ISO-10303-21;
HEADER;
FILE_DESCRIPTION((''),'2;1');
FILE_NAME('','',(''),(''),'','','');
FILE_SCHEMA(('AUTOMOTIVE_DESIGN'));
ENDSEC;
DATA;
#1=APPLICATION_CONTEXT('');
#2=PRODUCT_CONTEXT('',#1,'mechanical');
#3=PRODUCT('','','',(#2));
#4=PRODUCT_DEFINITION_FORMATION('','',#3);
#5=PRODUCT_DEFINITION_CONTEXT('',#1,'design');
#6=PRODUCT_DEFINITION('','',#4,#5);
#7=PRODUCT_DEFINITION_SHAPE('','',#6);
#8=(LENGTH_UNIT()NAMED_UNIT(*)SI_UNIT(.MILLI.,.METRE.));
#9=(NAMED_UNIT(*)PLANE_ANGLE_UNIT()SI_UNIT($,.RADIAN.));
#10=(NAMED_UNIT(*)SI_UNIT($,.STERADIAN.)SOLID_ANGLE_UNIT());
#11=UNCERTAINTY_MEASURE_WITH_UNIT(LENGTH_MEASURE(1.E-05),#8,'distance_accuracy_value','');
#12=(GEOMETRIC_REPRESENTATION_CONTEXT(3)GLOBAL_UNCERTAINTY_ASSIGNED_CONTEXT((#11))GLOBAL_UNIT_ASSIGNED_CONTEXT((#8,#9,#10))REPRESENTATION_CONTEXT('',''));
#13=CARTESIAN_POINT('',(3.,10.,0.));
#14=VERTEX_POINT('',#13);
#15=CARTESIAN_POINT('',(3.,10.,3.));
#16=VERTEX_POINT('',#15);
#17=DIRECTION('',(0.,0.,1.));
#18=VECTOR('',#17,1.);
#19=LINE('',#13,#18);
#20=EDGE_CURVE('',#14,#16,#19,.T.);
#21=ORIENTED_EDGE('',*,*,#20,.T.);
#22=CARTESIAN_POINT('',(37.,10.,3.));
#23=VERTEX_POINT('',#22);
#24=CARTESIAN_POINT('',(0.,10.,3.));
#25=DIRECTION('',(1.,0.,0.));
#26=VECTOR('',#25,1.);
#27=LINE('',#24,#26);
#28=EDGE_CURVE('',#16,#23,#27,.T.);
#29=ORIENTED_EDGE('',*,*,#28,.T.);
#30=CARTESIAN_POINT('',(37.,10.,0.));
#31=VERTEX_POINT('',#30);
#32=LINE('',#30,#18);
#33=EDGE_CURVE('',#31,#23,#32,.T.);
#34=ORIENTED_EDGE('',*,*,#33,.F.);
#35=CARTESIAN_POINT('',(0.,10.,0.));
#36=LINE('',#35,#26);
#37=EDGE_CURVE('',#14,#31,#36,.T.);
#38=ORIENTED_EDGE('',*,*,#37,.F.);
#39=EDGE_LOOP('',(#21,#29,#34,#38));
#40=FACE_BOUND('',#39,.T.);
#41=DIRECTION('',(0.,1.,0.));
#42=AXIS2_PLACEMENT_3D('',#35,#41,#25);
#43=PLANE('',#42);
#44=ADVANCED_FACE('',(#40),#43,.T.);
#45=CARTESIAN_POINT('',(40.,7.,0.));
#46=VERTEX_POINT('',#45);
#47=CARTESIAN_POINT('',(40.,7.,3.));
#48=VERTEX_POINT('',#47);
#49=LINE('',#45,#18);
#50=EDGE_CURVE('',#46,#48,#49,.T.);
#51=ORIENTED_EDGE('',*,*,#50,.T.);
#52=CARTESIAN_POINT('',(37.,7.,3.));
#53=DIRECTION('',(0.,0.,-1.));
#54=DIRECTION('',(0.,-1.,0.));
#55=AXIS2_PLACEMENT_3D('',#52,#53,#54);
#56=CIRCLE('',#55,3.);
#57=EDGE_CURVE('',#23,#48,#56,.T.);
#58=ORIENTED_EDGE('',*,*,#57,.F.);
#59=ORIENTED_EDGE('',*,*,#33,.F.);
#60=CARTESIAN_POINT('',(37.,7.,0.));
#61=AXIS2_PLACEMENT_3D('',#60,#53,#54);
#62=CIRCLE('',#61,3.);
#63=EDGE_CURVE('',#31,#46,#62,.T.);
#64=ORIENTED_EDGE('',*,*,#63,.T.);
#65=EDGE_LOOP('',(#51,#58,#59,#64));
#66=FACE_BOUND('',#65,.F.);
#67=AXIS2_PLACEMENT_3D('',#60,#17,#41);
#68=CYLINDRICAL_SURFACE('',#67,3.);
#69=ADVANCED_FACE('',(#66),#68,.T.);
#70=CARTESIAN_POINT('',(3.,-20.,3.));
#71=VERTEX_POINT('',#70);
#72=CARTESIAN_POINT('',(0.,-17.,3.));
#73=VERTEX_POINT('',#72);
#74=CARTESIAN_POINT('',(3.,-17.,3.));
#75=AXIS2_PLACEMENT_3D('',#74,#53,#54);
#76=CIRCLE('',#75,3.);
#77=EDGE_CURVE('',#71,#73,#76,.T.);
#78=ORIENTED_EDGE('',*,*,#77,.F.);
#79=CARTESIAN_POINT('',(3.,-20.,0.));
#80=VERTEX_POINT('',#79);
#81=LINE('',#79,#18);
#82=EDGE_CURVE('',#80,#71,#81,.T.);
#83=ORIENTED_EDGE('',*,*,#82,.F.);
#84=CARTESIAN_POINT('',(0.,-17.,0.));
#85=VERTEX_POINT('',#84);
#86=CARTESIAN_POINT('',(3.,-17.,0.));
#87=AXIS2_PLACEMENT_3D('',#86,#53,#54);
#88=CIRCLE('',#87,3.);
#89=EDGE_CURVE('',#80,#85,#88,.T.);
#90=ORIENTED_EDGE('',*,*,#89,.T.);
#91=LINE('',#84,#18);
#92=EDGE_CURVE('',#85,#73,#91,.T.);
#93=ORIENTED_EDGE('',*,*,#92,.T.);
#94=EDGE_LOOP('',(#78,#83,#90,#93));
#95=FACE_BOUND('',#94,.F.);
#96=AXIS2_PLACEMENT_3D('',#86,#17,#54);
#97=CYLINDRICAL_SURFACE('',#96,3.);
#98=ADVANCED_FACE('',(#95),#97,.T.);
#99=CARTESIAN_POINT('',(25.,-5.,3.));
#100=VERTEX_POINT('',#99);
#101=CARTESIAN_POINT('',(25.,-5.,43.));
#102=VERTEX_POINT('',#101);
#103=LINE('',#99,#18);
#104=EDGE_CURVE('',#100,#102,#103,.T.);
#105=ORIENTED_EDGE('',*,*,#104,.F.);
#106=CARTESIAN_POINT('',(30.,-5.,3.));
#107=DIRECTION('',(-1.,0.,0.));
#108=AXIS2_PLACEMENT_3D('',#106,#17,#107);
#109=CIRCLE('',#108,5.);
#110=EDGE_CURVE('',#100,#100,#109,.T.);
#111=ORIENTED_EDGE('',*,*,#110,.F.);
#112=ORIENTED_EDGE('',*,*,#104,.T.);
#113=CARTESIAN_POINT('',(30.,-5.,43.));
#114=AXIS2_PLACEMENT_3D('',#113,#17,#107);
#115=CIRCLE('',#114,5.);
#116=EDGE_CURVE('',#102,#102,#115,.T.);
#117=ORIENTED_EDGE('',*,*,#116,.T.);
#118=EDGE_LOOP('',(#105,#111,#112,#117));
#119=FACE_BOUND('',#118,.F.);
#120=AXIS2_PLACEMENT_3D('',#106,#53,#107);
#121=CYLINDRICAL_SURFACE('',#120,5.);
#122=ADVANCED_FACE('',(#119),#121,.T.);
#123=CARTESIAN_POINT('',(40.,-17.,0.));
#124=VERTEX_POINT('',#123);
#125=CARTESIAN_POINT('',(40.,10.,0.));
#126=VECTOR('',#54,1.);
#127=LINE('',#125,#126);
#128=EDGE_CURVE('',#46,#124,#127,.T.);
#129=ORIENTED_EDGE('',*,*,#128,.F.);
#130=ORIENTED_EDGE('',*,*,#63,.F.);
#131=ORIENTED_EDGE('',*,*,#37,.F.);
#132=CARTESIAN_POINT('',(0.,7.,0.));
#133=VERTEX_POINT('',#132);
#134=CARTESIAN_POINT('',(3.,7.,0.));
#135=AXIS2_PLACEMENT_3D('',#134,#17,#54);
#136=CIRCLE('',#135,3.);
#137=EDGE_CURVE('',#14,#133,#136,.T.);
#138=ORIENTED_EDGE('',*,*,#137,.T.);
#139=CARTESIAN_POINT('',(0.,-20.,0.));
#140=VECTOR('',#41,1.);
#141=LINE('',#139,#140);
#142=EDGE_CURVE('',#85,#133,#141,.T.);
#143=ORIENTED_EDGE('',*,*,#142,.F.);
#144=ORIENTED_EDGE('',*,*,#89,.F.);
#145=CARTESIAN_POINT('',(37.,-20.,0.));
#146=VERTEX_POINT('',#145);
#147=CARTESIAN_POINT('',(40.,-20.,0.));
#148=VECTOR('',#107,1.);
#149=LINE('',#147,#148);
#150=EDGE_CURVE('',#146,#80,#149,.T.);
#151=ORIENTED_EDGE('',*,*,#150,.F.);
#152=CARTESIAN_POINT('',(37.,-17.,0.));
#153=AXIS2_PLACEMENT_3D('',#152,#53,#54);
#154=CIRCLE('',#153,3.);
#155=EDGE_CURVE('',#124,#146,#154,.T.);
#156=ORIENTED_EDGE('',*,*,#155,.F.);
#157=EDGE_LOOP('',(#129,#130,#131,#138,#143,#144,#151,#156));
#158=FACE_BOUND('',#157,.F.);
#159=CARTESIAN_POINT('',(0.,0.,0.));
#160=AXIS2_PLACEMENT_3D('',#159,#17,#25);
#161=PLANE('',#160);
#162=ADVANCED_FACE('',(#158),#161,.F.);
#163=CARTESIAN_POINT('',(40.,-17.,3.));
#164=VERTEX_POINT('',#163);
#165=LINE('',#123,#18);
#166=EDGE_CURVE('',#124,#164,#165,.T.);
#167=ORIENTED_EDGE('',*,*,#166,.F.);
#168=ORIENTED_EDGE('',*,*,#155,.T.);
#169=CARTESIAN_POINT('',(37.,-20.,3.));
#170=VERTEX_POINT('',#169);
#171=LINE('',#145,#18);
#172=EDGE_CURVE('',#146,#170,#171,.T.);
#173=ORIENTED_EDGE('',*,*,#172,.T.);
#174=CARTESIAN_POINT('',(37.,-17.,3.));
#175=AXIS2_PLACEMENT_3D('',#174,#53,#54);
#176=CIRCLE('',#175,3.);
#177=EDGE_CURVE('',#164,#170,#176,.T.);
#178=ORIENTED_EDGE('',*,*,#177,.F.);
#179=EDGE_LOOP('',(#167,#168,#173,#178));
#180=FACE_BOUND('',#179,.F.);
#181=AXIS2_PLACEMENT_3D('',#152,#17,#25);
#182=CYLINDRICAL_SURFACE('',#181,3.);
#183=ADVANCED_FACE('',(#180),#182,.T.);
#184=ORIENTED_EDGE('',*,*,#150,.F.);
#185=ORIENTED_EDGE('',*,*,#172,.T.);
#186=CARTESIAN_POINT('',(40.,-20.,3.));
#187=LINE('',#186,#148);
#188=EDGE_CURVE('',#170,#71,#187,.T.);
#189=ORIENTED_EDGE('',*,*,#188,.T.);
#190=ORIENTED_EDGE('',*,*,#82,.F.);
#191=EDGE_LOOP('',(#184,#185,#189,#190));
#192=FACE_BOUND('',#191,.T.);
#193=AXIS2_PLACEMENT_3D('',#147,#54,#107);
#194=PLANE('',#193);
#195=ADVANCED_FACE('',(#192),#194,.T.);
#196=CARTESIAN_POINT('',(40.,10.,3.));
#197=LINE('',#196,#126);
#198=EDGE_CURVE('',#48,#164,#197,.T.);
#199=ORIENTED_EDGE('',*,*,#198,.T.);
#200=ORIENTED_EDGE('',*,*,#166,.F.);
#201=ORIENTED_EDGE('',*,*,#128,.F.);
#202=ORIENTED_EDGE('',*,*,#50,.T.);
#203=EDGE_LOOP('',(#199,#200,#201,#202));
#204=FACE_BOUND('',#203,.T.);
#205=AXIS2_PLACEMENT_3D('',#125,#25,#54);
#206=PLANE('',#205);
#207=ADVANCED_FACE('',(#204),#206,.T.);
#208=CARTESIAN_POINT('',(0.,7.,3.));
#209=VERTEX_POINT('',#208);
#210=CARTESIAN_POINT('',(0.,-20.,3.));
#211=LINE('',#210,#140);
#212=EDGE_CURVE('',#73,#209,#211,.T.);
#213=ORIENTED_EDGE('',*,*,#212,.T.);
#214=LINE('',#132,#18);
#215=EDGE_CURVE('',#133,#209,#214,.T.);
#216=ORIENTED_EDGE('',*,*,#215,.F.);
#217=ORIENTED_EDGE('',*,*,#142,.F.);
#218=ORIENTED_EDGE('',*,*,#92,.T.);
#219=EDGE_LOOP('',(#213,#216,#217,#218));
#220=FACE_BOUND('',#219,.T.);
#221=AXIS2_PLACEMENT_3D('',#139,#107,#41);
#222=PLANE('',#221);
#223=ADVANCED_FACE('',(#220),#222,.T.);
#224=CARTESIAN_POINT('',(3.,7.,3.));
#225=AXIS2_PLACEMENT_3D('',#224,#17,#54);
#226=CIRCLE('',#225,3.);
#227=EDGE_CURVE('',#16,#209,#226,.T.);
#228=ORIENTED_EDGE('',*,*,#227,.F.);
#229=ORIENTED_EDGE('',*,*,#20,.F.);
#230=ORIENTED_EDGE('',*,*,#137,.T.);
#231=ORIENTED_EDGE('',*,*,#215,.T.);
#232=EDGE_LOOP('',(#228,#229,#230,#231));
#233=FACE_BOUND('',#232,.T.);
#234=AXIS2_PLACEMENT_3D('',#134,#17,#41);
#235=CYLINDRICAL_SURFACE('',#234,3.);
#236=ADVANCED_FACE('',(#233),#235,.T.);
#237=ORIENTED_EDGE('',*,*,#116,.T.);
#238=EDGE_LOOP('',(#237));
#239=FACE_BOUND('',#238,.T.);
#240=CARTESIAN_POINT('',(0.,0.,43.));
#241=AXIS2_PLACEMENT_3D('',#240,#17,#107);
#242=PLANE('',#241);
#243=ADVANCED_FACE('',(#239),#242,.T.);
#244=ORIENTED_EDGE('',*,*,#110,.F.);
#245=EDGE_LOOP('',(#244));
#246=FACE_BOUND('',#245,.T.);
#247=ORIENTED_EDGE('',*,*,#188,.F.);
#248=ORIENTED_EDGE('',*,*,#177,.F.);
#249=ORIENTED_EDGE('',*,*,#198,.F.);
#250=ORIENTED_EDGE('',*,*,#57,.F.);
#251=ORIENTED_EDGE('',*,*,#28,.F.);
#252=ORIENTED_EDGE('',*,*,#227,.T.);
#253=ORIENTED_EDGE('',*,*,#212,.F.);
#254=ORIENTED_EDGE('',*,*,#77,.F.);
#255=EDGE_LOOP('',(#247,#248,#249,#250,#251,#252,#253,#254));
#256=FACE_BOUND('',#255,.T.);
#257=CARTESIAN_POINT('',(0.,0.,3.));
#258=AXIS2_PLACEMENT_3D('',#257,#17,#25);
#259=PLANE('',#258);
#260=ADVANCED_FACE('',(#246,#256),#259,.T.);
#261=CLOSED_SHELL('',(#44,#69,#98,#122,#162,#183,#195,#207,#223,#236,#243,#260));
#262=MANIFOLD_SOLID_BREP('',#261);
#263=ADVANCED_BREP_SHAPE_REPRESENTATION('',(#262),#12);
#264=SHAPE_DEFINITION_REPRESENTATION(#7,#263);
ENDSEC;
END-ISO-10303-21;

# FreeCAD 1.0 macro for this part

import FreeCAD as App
import Part
import Sketcher
from FreeCAD import Vector
Q = App.Units.Quantity


def edges_at(feature, points):
    """Names of the edges that pass closest to the given points."""
    edges = feature.Shape.Edges
    near = lambda p: min(range(len(edges)), key=lambda i: edges[i].distToShape(Part.Vertex(*p))[0])
    return sorted({f"Edge{near(p) + 1}" for p in points})


def add_polygon(sketch, points):
    """Adds a closed chain of lines whose ends are joined by coincident constraints."""
    first, n = sketch.GeometryCount, len(points)
    for a, b in zip(points, points[1:] + points[:1]):
        sketch.addGeometry(Part.LineSegment(App.Vector(*a, 0), App.Vector(*b, 0)), False)
    for i in range(n):
        sketch.addConstraint(Sketcher.Constraint("Coincident", first + i, 2, first + (i + 1) % n, 1))

doc = App.newDocument("Part")
body = doc.addObject("PartDesign::Body", "Body")

# Sketch on XY plane
sketch1 = body.newObject("Sketcher::SketchObject", "Sketch")
sketch1.AttachmentSupport = (doc.getObject("XY_Plane"), [""])
sketch1.MapMode = "FlatFace"
add_polygon(sketch1, [(40, 10), (0, 10), (0, -20), (40, -20)])  # lines 0-3
sketch1.addConstraint([
    Sketcher.Constraint("Horizontal", 0),
    Sketcher.Constraint("Vertical", 1),
    Sketcher.Constraint("Horizontal", 2),
    Sketcher.Constraint("Vertical", 3),
    Sketcher.Constraint("PointOnObject", 0, 2, -2),
    Sketcher.Constraint("DistanceX", 0, 2, 0, 1, Q("40 mm")),
    Sketcher.Constraint("DistanceY", 1, 2, 1, 1, Q("30 mm")),
    Sketcher.Constraint("DistanceY", -1, 1, 0, 2, Q("10 mm")),
])
pad1 = body.newObject("PartDesign::Pad", "Pad")
pad1.Profile = sketch1
pad1.Length = 3
doc.recompute()

fillet = body.newObject("PartDesign::Fillet", "Fillet")
fillet.Base = (pad1, edges_at(pad1, [
    (0, -20, 1.5),
    (40, -20, 1.5),
    (40, 10, 1.5),
    (0, 10, 1.5),
]))
fillet.Radius = 3

# Sketch on XY plane
sketch2 = body.newObject("Sketcher::SketchObject", "Sketch001")
sketch2.AttachmentSupport = (doc.getObject("XY_Plane"), [""])
sketch2.MapMode = "FlatFace"
sketch2.AttachmentOffset = App.Placement(Vector(0, 0, 3), App.Rotation())
sketch2.addGeometry(Part.Circle(Vector(30, -5, 0), Vector(0, 0, 1), 5), False)
sketch2.addConstraint([
    Sketcher.Constraint("Diameter", 0, Q("10 mm")),
    Sketcher.Constraint("DistanceX", -1, 1, 0, 3, Q("30 mm")),
    Sketcher.Constraint("DistanceY", 0, 3, -1, 1, Q("5 mm")),
])
pad2 = body.newObject("PartDesign::Pad", "Pad001")
pad2.Profile = sketch2
pad2.Length = 40

doc.recompute()
